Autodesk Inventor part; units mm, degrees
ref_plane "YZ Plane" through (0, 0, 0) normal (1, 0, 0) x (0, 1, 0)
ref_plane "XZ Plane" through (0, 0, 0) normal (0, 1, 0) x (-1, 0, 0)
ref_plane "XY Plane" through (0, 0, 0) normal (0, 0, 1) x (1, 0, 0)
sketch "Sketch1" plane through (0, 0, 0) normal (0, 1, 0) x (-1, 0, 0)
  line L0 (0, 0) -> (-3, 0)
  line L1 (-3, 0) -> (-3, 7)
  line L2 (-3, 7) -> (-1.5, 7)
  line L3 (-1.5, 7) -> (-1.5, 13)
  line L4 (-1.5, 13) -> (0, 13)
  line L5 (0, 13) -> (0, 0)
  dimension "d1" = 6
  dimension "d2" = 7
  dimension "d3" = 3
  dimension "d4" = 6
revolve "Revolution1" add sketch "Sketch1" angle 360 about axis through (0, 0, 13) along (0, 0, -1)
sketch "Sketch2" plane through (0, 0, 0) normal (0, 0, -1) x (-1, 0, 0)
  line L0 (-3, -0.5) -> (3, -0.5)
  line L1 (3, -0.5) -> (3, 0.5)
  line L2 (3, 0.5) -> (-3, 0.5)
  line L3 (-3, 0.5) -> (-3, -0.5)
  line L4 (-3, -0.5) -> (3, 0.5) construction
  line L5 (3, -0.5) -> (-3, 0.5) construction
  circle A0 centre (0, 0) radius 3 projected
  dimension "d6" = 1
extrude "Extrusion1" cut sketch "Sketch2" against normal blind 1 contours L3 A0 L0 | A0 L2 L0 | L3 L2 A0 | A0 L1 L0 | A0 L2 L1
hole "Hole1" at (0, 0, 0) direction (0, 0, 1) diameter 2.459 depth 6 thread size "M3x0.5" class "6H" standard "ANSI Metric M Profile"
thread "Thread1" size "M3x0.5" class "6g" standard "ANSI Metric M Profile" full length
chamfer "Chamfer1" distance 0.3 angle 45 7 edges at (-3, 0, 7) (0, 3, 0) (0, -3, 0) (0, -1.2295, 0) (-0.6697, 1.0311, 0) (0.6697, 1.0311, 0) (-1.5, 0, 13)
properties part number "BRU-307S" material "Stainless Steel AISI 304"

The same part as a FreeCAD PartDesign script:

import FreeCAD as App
import Part
import Sketcher
from FreeCAD import Vector
Q = App.Units.Quantity


def edges_at(feature, points):
    """Names of the edges that pass closest to the given points."""
    edges = feature.Shape.Edges
    near = lambda p: min(range(len(edges)), key=lambda i: edges[i].distToShape(Part.Vertex(*p))[0])
    return sorted({f"Edge{near(p) + 1}" for p in points})


def add_polygon(sketch, points):
    """Adds a closed chain of lines whose ends are joined by coincident constraints."""
    first, n = sketch.GeometryCount, len(points)
    for a, b in zip(points, points[1:] + points[:1]):
        sketch.addGeometry(Part.LineSegment(App.Vector(*a, 0), App.Vector(*b, 0)), False)
    for i in range(n):
        sketch.addConstraint(Sketcher.Constraint("Coincident", first + i, 2, first + (i + 1) % n, 1))

doc = App.newDocument("Part")
body = doc.addObject("PartDesign::Body", "Body")

# Sketch on XZ plane
sketch1 = body.newObject("Sketcher::SketchObject", "Sketch")
sketch1.AttachmentSupport = (doc.getObject("XZ_Plane"), [""])
sketch1.MapMode = "FlatFace"
add_polygon(sketch1, [(3, 0), (0, 0), (0, 13), (1.5, 13), (1.5, 7), (3, 7)])  # lines 0-5
sketch1.addConstraint([
    Sketcher.Constraint("Horizontal", 0),
    Sketcher.Constraint("Vertical", 1),
    Sketcher.Constraint("Horizontal", 2),
    Sketcher.Constraint("Vertical", 3),
    Sketcher.Constraint("Horizontal", 4),
    Sketcher.Constraint("Vertical", 5),
    Sketcher.Constraint("Coincident", 0, 2, -1, 1),
    Sketcher.Constraint("Equal", 2, 4),
    Sketcher.Constraint("DistanceX", 0, 2, 0, 1, Q("3 mm")),
    Sketcher.Constraint("DistanceY", 3, 2, 3, 1, Q("6 mm")),
    Sketcher.Constraint("DistanceY", 5, 2, 5, 1, Q("7 mm")),
])
revolution = body.newObject("PartDesign::Revolution", "Revolution")
revolution.Profile = sketch1
revolution.ReferenceAxis = (sketch1, ["V_Axis"])
revolution.Angle = 360

# Sketch on XY plane
sketch2 = body.newObject("Sketcher::SketchObject", "Sketch001")
sketch2.AttachmentSupport = (doc.getObject("XY_Plane"), [""])
sketch2.MapMode = "FlatFace"
add_polygon(sketch2, [(3, -0.5), (-3, -0.5), (-3, 0.5), (3, 0.5)])  # lines 0-3
sketch2.addConstraint([
    Sketcher.Constraint("Horizontal", 0),
    Sketcher.Constraint("Vertical", 1),
    Sketcher.Constraint("Horizontal", 2),
    Sketcher.Constraint("Vertical", 3),
    Sketcher.Constraint("Symmetric", 0, 2, 2, 2, -1, 1),
    Sketcher.Constraint("DistanceY", 1, 1, 1, 2, Q("1 mm")),
    Sketcher.Constraint("DistanceX", 0, 2, 0, 1, Q("6 mm")),
])
pocket1 = body.newObject("PartDesign::Pocket", "Pocket")
pocket1.Profile = sketch2
pocket1.Length = 1
pocket1.Reversed = True

# Sketch on XY plane
sketch3 = body.newObject("Sketcher::SketchObject", "Sketch002")
sketch3.AttachmentSupport = (doc.getObject("XY_Plane"), [""])
sketch3.MapMode = "FlatFace"
sketch3.addGeometry(Part.Circle(Vector(0, 0, 0), Vector(0, 0, 1), 1.2), False)
sketch3.addConstraint([
    Sketcher.Constraint("Coincident", 0, 3, -1, 1),
    Sketcher.Constraint("Diameter", 0, Q("2.459 mm")),
])
doc.recompute()
hole = body.newObject("PartDesign::Hole", "Hole")
hole.Profile = sketch3
hole.ThreadType = "None"
hole.Diameter = 2.459
hole.DepthType = "Dimension"
hole.Depth = 6
hole.DrillPoint = "Flat"
hole.Reversed = True
doc.recompute()

chamfer = body.newObject("PartDesign::Chamfer", "Chamfer")
chamfer.Base = (hole, edges_at(hole, [
    (-3, 0, 7),
    (0, 3, 0),
    (0, -3, 0),
    (0, -1.23, 0),
    (-0.67, 1.031, 0),
    (0.67, 1.031, 0),
    (-1.5, 0, 13),
]))
chamfer.Size = 0.3

doc.recompute()
